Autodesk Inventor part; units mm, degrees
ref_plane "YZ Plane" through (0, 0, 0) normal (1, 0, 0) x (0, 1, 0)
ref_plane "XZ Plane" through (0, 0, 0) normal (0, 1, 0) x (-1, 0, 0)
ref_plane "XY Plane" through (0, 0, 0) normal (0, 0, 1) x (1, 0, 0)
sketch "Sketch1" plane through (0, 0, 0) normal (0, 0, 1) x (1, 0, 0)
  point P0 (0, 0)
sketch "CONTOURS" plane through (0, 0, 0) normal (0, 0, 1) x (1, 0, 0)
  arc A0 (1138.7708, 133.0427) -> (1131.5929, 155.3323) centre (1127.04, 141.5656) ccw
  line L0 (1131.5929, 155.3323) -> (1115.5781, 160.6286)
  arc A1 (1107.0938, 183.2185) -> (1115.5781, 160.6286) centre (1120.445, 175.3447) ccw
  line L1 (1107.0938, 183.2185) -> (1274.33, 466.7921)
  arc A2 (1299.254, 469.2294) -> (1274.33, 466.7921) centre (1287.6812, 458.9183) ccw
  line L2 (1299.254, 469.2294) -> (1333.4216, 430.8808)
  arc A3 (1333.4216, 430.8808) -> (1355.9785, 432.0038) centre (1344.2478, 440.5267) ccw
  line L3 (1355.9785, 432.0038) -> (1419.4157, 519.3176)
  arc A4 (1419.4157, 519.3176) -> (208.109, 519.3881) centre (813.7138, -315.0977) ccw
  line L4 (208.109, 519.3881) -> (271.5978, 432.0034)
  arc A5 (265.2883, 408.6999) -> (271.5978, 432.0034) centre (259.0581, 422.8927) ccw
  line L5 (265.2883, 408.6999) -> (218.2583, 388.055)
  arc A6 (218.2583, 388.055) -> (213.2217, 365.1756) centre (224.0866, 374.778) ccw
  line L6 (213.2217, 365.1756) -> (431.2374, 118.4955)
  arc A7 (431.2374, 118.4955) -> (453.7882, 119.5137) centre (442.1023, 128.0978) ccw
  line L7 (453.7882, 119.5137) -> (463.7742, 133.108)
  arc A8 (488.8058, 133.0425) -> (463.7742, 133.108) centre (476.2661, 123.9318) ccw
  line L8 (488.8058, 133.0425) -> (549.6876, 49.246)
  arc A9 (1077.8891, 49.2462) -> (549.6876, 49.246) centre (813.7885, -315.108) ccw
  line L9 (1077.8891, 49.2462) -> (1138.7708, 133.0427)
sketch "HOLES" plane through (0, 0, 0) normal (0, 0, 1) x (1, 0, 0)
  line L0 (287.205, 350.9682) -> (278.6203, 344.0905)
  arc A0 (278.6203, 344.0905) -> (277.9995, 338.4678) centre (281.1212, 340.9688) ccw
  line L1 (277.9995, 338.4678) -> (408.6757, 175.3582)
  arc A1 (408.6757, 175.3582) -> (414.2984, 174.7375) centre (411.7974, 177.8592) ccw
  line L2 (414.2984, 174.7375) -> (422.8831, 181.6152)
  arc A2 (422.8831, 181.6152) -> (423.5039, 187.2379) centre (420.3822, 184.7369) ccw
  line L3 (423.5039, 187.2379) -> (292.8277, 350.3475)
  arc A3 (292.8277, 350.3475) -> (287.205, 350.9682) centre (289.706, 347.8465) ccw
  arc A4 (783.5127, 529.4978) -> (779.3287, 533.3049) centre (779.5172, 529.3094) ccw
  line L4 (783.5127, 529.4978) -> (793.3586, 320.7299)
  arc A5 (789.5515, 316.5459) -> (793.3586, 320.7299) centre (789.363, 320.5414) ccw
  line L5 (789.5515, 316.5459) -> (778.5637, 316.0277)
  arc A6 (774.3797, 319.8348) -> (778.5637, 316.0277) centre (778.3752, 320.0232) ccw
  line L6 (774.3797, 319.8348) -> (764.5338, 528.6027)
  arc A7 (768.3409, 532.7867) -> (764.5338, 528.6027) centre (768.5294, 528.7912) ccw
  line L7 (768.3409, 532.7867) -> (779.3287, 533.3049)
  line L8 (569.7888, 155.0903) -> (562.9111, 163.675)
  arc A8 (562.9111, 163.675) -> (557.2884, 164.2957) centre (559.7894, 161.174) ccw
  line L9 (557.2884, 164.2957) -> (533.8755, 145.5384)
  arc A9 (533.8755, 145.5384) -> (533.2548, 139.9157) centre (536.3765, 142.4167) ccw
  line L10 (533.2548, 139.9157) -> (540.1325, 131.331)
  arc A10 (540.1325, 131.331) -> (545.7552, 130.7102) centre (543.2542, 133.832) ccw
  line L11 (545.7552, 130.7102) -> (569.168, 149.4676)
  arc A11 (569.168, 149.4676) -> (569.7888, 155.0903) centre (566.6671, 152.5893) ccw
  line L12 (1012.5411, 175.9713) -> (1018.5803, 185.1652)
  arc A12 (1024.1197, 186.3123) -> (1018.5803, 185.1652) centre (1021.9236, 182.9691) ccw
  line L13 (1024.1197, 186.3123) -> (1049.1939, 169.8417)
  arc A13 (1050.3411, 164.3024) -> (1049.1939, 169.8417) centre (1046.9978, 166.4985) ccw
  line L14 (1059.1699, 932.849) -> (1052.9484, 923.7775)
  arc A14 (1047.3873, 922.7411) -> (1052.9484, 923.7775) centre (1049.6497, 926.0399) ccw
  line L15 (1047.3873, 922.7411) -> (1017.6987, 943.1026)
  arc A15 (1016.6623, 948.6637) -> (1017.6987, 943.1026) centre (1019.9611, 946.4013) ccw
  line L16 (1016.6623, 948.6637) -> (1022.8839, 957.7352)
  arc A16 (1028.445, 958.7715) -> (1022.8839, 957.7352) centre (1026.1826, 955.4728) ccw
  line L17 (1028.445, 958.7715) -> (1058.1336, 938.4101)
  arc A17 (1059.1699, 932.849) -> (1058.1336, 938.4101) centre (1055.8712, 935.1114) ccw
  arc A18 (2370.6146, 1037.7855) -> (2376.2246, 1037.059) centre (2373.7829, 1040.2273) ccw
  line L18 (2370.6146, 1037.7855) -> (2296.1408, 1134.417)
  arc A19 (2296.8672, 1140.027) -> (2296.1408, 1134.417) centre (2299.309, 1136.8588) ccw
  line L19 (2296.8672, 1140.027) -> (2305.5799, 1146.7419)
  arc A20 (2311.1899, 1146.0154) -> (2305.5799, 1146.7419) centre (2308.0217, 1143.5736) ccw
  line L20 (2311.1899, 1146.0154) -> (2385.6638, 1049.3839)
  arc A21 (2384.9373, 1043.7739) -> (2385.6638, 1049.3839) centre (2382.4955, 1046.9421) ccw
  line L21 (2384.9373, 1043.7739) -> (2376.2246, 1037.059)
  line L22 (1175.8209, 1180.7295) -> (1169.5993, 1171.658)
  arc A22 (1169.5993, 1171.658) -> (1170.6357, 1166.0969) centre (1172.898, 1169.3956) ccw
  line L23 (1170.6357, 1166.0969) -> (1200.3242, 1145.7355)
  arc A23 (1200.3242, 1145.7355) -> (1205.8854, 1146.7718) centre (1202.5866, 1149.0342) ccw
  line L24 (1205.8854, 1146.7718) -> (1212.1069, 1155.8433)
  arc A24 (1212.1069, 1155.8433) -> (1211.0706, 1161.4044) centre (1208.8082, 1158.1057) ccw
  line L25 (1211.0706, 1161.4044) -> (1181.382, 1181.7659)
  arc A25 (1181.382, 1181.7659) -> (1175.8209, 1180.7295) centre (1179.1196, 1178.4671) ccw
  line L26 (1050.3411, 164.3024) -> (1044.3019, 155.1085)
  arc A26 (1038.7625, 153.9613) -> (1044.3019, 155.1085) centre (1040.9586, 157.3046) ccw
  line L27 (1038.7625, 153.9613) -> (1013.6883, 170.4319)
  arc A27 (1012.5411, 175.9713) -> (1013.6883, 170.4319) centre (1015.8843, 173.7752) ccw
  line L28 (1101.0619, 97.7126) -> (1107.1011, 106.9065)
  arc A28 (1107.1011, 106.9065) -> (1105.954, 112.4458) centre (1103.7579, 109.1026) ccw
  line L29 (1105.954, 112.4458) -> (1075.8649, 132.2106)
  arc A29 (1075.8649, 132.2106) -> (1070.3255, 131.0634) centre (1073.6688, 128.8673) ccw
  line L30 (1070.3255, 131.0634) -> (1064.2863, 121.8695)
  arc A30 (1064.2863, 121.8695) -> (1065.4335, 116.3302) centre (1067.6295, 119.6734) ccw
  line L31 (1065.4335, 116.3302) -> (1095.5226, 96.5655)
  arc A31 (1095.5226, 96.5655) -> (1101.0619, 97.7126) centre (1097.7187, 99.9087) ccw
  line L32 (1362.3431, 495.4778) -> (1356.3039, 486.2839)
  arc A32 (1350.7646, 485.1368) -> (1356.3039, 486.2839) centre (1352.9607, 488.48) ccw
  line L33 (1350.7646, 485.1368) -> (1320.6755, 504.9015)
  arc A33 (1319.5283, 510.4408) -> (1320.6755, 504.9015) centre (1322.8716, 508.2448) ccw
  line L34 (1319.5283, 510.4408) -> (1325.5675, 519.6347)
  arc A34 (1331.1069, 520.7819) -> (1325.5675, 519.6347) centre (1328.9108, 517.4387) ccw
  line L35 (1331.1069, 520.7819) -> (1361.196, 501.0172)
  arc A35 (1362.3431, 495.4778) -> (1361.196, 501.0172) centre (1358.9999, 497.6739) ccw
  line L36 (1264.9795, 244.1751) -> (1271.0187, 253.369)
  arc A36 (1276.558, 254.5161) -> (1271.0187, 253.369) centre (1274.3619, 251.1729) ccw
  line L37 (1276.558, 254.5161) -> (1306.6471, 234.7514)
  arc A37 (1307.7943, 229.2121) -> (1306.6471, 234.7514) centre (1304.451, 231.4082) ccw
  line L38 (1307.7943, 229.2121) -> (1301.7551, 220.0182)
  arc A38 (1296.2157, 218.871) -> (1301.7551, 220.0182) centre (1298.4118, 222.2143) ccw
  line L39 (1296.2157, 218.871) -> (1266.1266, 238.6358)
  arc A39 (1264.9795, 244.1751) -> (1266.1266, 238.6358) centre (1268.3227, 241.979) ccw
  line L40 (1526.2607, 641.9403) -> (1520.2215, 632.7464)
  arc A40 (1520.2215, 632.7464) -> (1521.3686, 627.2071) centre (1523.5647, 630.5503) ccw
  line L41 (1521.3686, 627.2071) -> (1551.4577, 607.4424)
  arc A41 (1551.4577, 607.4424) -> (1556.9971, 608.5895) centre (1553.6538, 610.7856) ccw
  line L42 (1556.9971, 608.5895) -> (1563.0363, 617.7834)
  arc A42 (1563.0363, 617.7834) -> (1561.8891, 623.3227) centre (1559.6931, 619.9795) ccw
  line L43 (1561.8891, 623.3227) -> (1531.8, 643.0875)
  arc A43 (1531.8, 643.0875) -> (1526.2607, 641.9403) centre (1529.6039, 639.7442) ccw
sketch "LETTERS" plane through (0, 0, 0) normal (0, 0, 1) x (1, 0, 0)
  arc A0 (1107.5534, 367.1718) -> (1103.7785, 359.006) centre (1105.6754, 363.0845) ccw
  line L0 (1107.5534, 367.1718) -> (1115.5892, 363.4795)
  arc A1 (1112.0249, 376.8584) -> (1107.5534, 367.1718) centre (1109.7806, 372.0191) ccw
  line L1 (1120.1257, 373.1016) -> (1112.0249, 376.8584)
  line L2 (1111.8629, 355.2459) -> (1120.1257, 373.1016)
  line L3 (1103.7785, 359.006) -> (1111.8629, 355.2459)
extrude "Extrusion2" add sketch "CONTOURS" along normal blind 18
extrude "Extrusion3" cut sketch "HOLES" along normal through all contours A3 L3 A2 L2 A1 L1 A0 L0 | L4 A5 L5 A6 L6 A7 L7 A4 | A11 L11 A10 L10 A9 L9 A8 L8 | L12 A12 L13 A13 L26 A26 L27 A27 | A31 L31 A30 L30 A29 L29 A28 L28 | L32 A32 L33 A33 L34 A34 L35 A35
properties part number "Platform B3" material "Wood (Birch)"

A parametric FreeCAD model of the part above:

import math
import FreeCAD as App
import Part
import Sketcher

V = App.Vector
Q = App.Units.Quantity

doc = App.newDocument("Part")
body = doc.addObject("PartDesign::Body", "Body")

# Sketch on XY plane
sketch1 = body.newObject("Sketcher::SketchObject", "Sketch")
sketch1.AttachmentSupport = (doc.getObject("XY_Plane"), [""])
sketch1.MapMode = "FlatFace"
sketch1.addGeometry([
    Part.LineSegment(V(1078, 49, 0), V(1139, 133, 0)),  # 0
    Part.ArcOfCircle(Part.Circle(V(1127, 142, 0), V(0, 0, 1), 15), math.radians(-36), math.radians(72)),  # 1
    Part.LineSegment(V(1132, 155, 0), V(1116, 161, 0)),  # 2
    Part.ArcOfCircle(Part.Circle(V(1120, 175, 0), V(0, 0, 1), 16), math.radians(149), math.radians(252)),  # 3
    Part.LineSegment(V(1107, 183, 0), V(1274, 467, 0)),  # 4
    Part.ArcOfCircle(Part.Circle(V(1288, 459, 0), V(0, 0, 1), 15), math.radians(42), math.radians(149)),  # 5
    Part.LineSegment(V(1299, 469, 0), V(1333, 431, 0)),  # 6
    Part.ArcOfCircle(Part.Circle(V(1344, 441, 0), V(0, 0, 1), 14), math.radians(-138), math.radians(-36)),  # 7
    Part.LineSegment(V(1356, 432, 0), V(1419, 519, 0)),  # 8
    Part.ArcOfCircle(Part.Circle(V(814, -315, 0), V(0, 0, 1), 1031), math.radians(54), math.radians(126)),  # 9
    Part.LineSegment(V(208, 519, 0), V(272, 432, 0)),  # 10
    Part.ArcOfCircle(Part.Circle(V(259, 423, 0), V(0, 0, 1), 16), math.radians(-66), math.radians(36)),  # 11
    Part.LineSegment(V(265, 409, 0), V(218, 388, 0)),  # 12
    Part.ArcOfCircle(Part.Circle(V(224, 375, 0), V(0, 0, 1), 14), math.radians(114), math.radians(221)),  # 13
    Part.LineSegment(V(213, 365, 0), V(431, 118, 0)),  # 14
    Part.ArcOfCircle(Part.Circle(V(442, 128, 0), V(0, 0, 1), 15), math.radians(-139), math.radians(-36)),  # 15
    Part.LineSegment(V(454, 120, 0), V(464, 133, 0)),  # 16
    Part.ArcOfCircle(Part.Circle(V(476, 124, 0), V(0, 0, 1), 15), math.radians(36), math.radians(144)),  # 17
    Part.LineSegment(V(489, 133, 0), V(550, 49, 0)),  # 18
    Part.ArcOfCircle(Part.Circle(V(814, -315, 0), V(0, 0, 1), 450), math.radians(54), math.radians(126)),  # 19
], False)
sketch1.addConstraint([
    Sketcher.Constraint("Tangent", 0, 2, 1, 1),
    Sketcher.Constraint("Tangent", 1, 2, 2, 1),
    Sketcher.Constraint("Tangent", 2, 2, 3, 2),
    Sketcher.Constraint("Tangent", 3, 1, 4, 1),
    Sketcher.Constraint("Tangent", 4, 2, 5, 2),
    Sketcher.Constraint("Tangent", 5, 1, 6, 1),
    Sketcher.Constraint("Tangent", 6, 2, 7, 1),
    Sketcher.Constraint("Tangent", 7, 2, 8, 1),
    Sketcher.Constraint("Coincident", 8, 2, 9, 1),
    Sketcher.Constraint("Coincident", 9, 2, 10, 1),
    Sketcher.Constraint("Tangent", 10, 2, 11, 2),
    Sketcher.Constraint("Tangent", 11, 1, 12, 1),
    Sketcher.Constraint("Tangent", 12, 2, 13, 1),
    Sketcher.Constraint("Tangent", 13, 2, 14, 1),
    Sketcher.Constraint("Tangent", 14, 2, 15, 1),
    Sketcher.Constraint("Tangent", 15, 2, 16, 1),
    Sketcher.Constraint("Tangent", 16, 2, 17, 2),
    Sketcher.Constraint("Tangent", 17, 1, 18, 1),
    Sketcher.Constraint("Coincident", 18, 2, 19, 2),
    Sketcher.Constraint("Coincident", 19, 1, 0, 1),
    Sketcher.Constraint("Equal", 3, 5),
    Sketcher.Constraint("Equal", 1, 7),
    Sketcher.Constraint("Equal", 5, 11),
    Sketcher.Constraint("Equal", 7, 13),
    Sketcher.Constraint("Equal", 13, 15),
    Sketcher.Constraint("Equal", 11, 17),
    Sketcher.Constraint("Parallel", 0, 8),
    Sketcher.Constraint("Parallel", 10, 18),
    Sketcher.Constraint("Horizontal", 18, 2, 19, 1),
    Sketcher.Constraint("Equal", 6, 12),
    Sketcher.Constraint("Equal", 4, 14),
    Sketcher.Constraint("Equal", 2, 16),
    Sketcher.Constraint("Equal", 0, 18),
    Sketcher.Constraint("Radius", 1, 14.5),
    Sketcher.Constraint("Radius", 3, 15.5),
    Sketcher.Constraint("Angle", 0, Q("54 deg")),
    Sketcher.Constraint("Angle", 10, Q("-54 deg")),
    Sketcher.Constraint("Angle", 2, Q("161.7003 deg")),
    Sketcher.Constraint("Angle", 6, Q("-48.2998 deg")),
    Sketcher.Constraint("Angle", 12, Q("-156.2998 deg")),
    Sketcher.Constraint("Angle", 16, Q("53.7 deg")),
    Sketcher.Constraint("Radius", 9, 1031.079),
    Sketcher.Constraint("DistanceY", -1, 1, 11, 1, 408.7),
    Sketcher.Constraint("Angle", 4, Q("59.4702 deg")),
    Sketcher.Constraint("Angle", 14, Q("-48.5298 deg")),
    Sketcher.Constraint("Radius", 19, 450.0035),
    Sketcher.Constraint("DistanceX", -1, 1, 1, 3, 1127.04),
    Sketcher.Constraint("DistanceX", -1, 1, 4, 2, 1274.33),
    Sketcher.Constraint("DistanceX", 12, 2, 11, 1, 47.03),
    Sketcher.Constraint("Distance", 4, 329.214),
    Sketcher.Constraint("DistanceX", -1, 1, 11, 3, 259.058),
    Sketcher.Constraint("DistanceY", 19, 3, -1, 1, 315.108),
    Sketcher.Constraint("DistanceY", 9, 3, 5, 3, 774.016),
    Sketcher.Constraint("DistanceX", 9, 3, 7, 3, 530.534),
])
pad1 = body.newObject("PartDesign::Pad", "Pad")
pad1.Profile = sketch1
pad1.Length = 18

# Sketch on XY plane
sketch2 = body.newObject("Sketcher::SketchObject", "Sketch001")
sketch2.AttachmentSupport = (doc.getObject("XY_Plane"), [""])
sketch2.MapMode = "FlatFace"
sketch2.addGeometry([
    Part.ArcOfCircle(Part.Circle(V(289.7, 347.8, 0), V(0, 0, 1), 4), math.radians(39), math.radians(129)),  # 0
    Part.LineSegment(V(287.2, 351, 0), V(278.6, 344.1, 0)),  # 1
    Part.ArcOfCircle(Part.Circle(V(281.1, 341, 0), V(0, 0, 1), 4), math.radians(129), math.radians(219)),  # 2
    Part.LineSegment(V(278, 338.5, 0), V(408.7, 175.4, 0)),  # 3
    Part.ArcOfCircle(Part.Circle(V(411.8, 177.9, 0), V(0, 0, 1), 4), math.radians(-141), math.radians(-51)),  # 4
    Part.LineSegment(V(414.3, 174.7, 0), V(422.9, 181.6, 0)),  # 5
    Part.ArcOfCircle(Part.Circle(V(420.4, 184.7, 0), V(0, 0, 1), 4), math.radians(-51), math.radians(39)),  # 6
    Part.LineSegment(V(423.5, 187.2, 0), V(292.8, 350.3, 0)),  # 7
    Part.LineSegment(V(793.4, 320.7, 0), V(783.5, 529.5, 0)),  # 8
    Part.ArcOfCircle(Part.Circle(V(779.5, 529.3, 0), V(0, 0, 1), 4), math.radians(3), math.radians(93)),  # 9
    Part.LineSegment(V(779.3, 533.3, 0), V(768.3, 532.8, 0)),  # 10
    Part.ArcOfCircle(Part.Circle(V(768.5, 528.8, 0), V(0, 0, 1), 4), math.radians(93), math.radians(183)),  # 11
    Part.LineSegment(V(764.5, 528.6, 0), V(774.4, 319.8, 0)),  # 12
    Part.ArcOfCircle(Part.Circle(V(778.4, 320, 0), V(0, 0, 1), 4), math.radians(-177), math.radians(-87)),  # 13
    Part.LineSegment(V(778.6, 316, 0), V(789.6, 316.5, 0)),  # 14
    Part.ArcOfCircle(Part.Circle(V(789.4, 320.5, 0), V(0, 0, 1), 4), math.radians(-87), math.radians(3)),  # 15
    Part.ArcOfCircle(Part.Circle(V(566.7, 152.6, 0), V(0, 0, 1), 4), math.radians(-51), math.radians(39)),  # 16
    Part.LineSegment(V(569.8, 155.1, 0), V(562.9, 163.7, 0)),  # 17
    Part.ArcOfCircle(Part.Circle(V(559.8, 161.2, 0), V(0, 0, 1), 4), math.radians(39), math.radians(129)),  # 18
    Part.LineSegment(V(557.3, 164.3, 0), V(533.9, 145.5, 0)),  # 19
    Part.ArcOfCircle(Part.Circle(V(536.4, 142.4, 0), V(0, 0, 1), 4), math.radians(129), math.radians(219)),  # 20
    Part.LineSegment(V(533.3, 139.9, 0), V(540.1, 131.3, 0)),  # 21
    Part.ArcOfCircle(Part.Circle(V(543.3, 133.8, 0), V(0, 0, 1), 4), math.radians(-141), math.radians(-51)),  # 22
    Part.LineSegment(V(545.8, 130.7, 0), V(569.2, 149.5, 0)),  # 23
    Part.LineSegment(V(1018.6, 185.2, 0), V(1012.5, 176, 0)),  # 24
    Part.ArcOfCircle(Part.Circle(V(1015.9, 173.8, 0), V(0, 0, 1), 4), math.radians(147), math.radians(237)),  # 25
    Part.LineSegment(V(1013.7, 170.4, 0), V(1038.8, 154, 0)),  # 26
    Part.ArcOfCircle(Part.Circle(V(1041, 157.3, 0), V(0, 0, 1), 4), math.radians(-123), math.radians(-33)),  # 27
    Part.LineSegment(V(1044.3, 155.1, 0), V(1050.3, 164.3, 0)),  # 28
    Part.ArcOfCircle(Part.Circle(V(1047, 166.5, 0), V(0, 0, 1), 4), math.radians(-33), math.radians(57)),  # 29
    Part.LineSegment(V(1049.2, 169.8, 0), V(1024.1, 186.3, 0)),  # 30
    Part.ArcOfCircle(Part.Circle(V(1021.9, 183, 0), V(0, 0, 1), 4), math.radians(57), math.radians(147)),  # 31
    Part.ArcOfCircle(Part.Circle(V(1097.7, 99.9, 0), V(0, 0, 1), 4), math.radians(-123), math.radians(-33)),  # 32
    Part.LineSegment(V(1101.1, 97.7, 0), V(1107.1, 106.9, 0)),  # 33
    Part.ArcOfCircle(Part.Circle(V(1103.8, 109.1, 0), V(0, 0, 1), 4), math.radians(-33), math.radians(57)),  # 34
    Part.LineSegment(V(1106, 112.4, 0), V(1075.9, 132.2, 0)),  # 35
    Part.ArcOfCircle(Part.Circle(V(1073.7, 128.9, 0), V(0, 0, 1), 4), math.radians(57), math.radians(147)),  # 36
    Part.LineSegment(V(1070.3, 131.1, 0), V(1064.3, 121.9, 0)),  # 37
    Part.ArcOfCircle(Part.Circle(V(1067.6, 119.7, 0), V(0, 0, 1), 4), math.radians(147), math.radians(237)),  # 38
    Part.LineSegment(V(1065.4, 116.3, 0), V(1095.5, 96.6, 0)),  # 39
    Part.LineSegment(V(1356.3, 486.3, 0), V(1362.3, 495.5, 0)),  # 40
    Part.ArcOfCircle(Part.Circle(V(1359, 497.7, 0), V(0, 0, 1), 4), math.radians(-33), math.radians(57)),  # 41
    Part.LineSegment(V(1361.2, 501, 0), V(1331.1, 520.8, 0)),  # 42
    Part.ArcOfCircle(Part.Circle(V(1328.9, 517.4, 0), V(0, 0, 1), 4), math.radians(57), math.radians(147)),  # 43
    Part.LineSegment(V(1325.6, 519.6, 0), V(1319.5, 510.4, 0)),  # 44
    Part.ArcOfCircle(Part.Circle(V(1322.9, 508.2, 0), V(0, 0, 1), 4), math.radians(147), math.radians(237)),  # 45
    Part.LineSegment(V(1320.7, 504.9, 0), V(1350.8, 485.1, 0)),  # 46
    Part.ArcOfCircle(Part.Circle(V(1353, 488.5, 0), V(0, 0, 1), 4), math.radians(-123), math.radians(-33)),  # 47
], False)
sketch2.addConstraint([
    Sketcher.Constraint("Tangent", 0, 2, 1, 1),
    Sketcher.Constraint("Tangent", 1, 2, 2, 1),
    Sketcher.Constraint("Tangent", 2, 2, 3, 1),
    Sketcher.Constraint("Tangent", 3, 2, 4, 1),
    Sketcher.Constraint("Tangent", 4, 2, 5, 1),
    Sketcher.Constraint("Tangent", 5, 2, 6, 1),
    Sketcher.Constraint("Tangent", 6, 2, 7, 1),
    Sketcher.Constraint("Tangent", 7, 2, 0, 1),
    Sketcher.Constraint("Tangent", 8, 2, 9, 1),
    Sketcher.Constraint("Tangent", 9, 2, 10, 1),
    Sketcher.Constraint("Tangent", 10, 2, 11, 1),
    Sketcher.Constraint("Tangent", 11, 2, 12, 1),
    Sketcher.Constraint("Tangent", 12, 2, 13, 1),
    Sketcher.Constraint("Tangent", 13, 2, 14, 1),
    Sketcher.Constraint("Tangent", 14, 2, 15, 1),
    Sketcher.Constraint("Tangent", 15, 2, 8, 1),
    Sketcher.Constraint("Tangent", 16, 2, 17, 1),
    Sketcher.Constraint("Tangent", 17, 2, 18, 1),
    Sketcher.Constraint("Tangent", 18, 2, 19, 1),
    Sketcher.Constraint("Tangent", 19, 2, 20, 1),
    Sketcher.Constraint("Tangent", 20, 2, 21, 1),
    Sketcher.Constraint("Tangent", 21, 2, 22, 1),
    Sketcher.Constraint("Tangent", 22, 2, 23, 1),
    Sketcher.Constraint("Tangent", 23, 2, 16, 1),
    Sketcher.Constraint("Tangent", 24, 2, 25, 1),
    Sketcher.Constraint("Tangent", 25, 2, 26, 1),
    Sketcher.Constraint("Tangent", 26, 2, 27, 1),
    Sketcher.Constraint("Tangent", 27, 2, 28, 1),
    Sketcher.Constraint("Tangent", 28, 2, 29, 1),
    Sketcher.Constraint("Tangent", 29, 2, 30, 1),
    Sketcher.Constraint("Tangent", 30, 2, 31, 1),
    Sketcher.Constraint("Tangent", 31, 2, 24, 1),
    Sketcher.Constraint("Tangent", 32, 2, 33, 1),
    Sketcher.Constraint("Tangent", 33, 2, 34, 1),
    Sketcher.Constraint("Tangent", 34, 2, 35, 1),
    Sketcher.Constraint("Tangent", 35, 2, 36, 1),
    Sketcher.Constraint("Tangent", 36, 2, 37, 1),
    Sketcher.Constraint("Tangent", 37, 2, 38, 1),
    Sketcher.Constraint("Tangent", 38, 2, 39, 1),
    Sketcher.Constraint("Tangent", 39, 2, 32, 1),
    Sketcher.Constraint("Tangent", 40, 2, 41, 1),
    Sketcher.Constraint("Tangent", 41, 2, 42, 1),
    Sketcher.Constraint("Tangent", 42, 2, 43, 1),
    Sketcher.Constraint("Tangent", 43, 2, 44, 1),
    Sketcher.Constraint("Tangent", 44, 2, 45, 1),
    Sketcher.Constraint("Tangent", 45, 2, 46, 1),
    Sketcher.Constraint("Tangent", 46, 2, 47, 1),
    Sketcher.Constraint("Tangent", 47, 2, 40, 1),
    Sketcher.Constraint("Equal", 0, 2),
    Sketcher.Constraint("Equal", 2, 4),
    Sketcher.Constraint("Equal", 4, 6),
    Sketcher.Constraint("Equal", 6, 9),
    Sketcher.Constraint("Equal", 9, 11),
    Sketcher.Constraint("Equal", 11, 13),
    Sketcher.Constraint("Equal", 13, 15),
    Sketcher.Constraint("Equal", 15, 16),
    Sketcher.Constraint("Equal", 16, 18),
    Sketcher.Constraint("Equal", 18, 20),
    Sketcher.Constraint("Equal", 20, 22),
    Sketcher.Constraint("Equal", 22, 25),
    Sketcher.Constraint("Equal", 25, 27),
    Sketcher.Constraint("Equal", 27, 29),
    Sketcher.Constraint("Equal", 29, 31),
    Sketcher.Constraint("Equal", 31, 32),
    Sketcher.Constraint("Equal", 32, 34),
    Sketcher.Constraint("Equal", 34, 36),
    Sketcher.Constraint("Equal", 36, 38),
    Sketcher.Constraint("Equal", 38, 41),
    Sketcher.Constraint("Equal", 41, 43),
    Sketcher.Constraint("Equal", 43, 45),
    Sketcher.Constraint("Equal", 45, 47),
    Sketcher.Constraint("Perpendicular", 1, 3),
    Sketcher.Constraint("Perpendicular", 3, 5),
    Sketcher.Constraint("Perpendicular", 5, 7),
    Sketcher.Constraint("Perpendicular", 8, 10),
    Sketcher.Constraint("Perpendicular", 10, 12),
    Sketcher.Constraint("Perpendicular", 12, 14),
    Sketcher.Constraint("Parallel", 7, 17),
    Sketcher.Constraint("Perpendicular", 17, 19),
    Sketcher.Constraint("Perpendicular", 19, 21),
    Sketcher.Constraint("Perpendicular", 21, 23),
    Sketcher.Constraint("Perpendicular", 24, 26),
    Sketcher.Constraint("Perpendicular", 26, 28),
    Sketcher.Constraint("Perpendicular", 28, 30),
    Sketcher.Constraint("Perpendicular", 30, 33),
    Sketcher.Constraint("Perpendicular", 33, 35),
    Sketcher.Constraint("Perpendicular", 35, 37),
    Sketcher.Constraint("Perpendicular", 37, 39),
    Sketcher.Constraint("Perpendicular", 39, 40),
    Sketcher.Constraint("Perpendicular", 40, 42),
    Sketcher.Constraint("Perpendicular", 42, 44),
    Sketcher.Constraint("Perpendicular", 44, 46),
    Sketcher.Constraint("Equal", 7, 8),
    Sketcher.Constraint("Equal", 5, 10),
    Sketcher.Constraint("Equal", 14, 17),
    Sketcher.Constraint("Equal", 21, 24),
    Sketcher.Constraint("Equal", 23, 26),
    Sketcher.Constraint("Equal", 28, 33),
    Sketcher.Constraint("Equal", 37, 40),
    Sketcher.Constraint("Equal", 39, 42),
    Sketcher.Constraint("Radius", 0, 4.0),
    Sketcher.Constraint("Distance", 1, 11.0),
    Sketcher.Constraint("Distance", 3, 209.0),
    Sketcher.Constraint("Distance", 19, 30.0),
    Sketcher.Constraint("Distance", 35, 36.0),
    Sketcher.Constraint("DistanceX", -1, 1, 41, 3, 1359.0),
    Sketcher.Constraint("Angle", 1, Q("-141.2998 deg")),
    Sketcher.Constraint("Angle", 8, Q("92.7002 deg")),
    Sketcher.Constraint("Angle", 24, Q("-123.2997 deg")),
    Sketcher.Constraint("DistanceY", -1, 1, 47, 3, 488.48),
    Sketcher.Constraint("DistanceY", -1, 1, 15, 2, 320.73),
    Sketcher.Constraint("DistanceX", -1, 1, 0, 3, 289.706),
    Sketcher.Constraint("DistanceY", -1, 1, 6, 3, 184.737),
    Sketcher.Constraint("DistanceX", -1, 1, 15, 3, 789.363),
    Sketcher.Constraint("DistanceX", -1, 1, 16, 3, 566.667),
    Sketcher.Constraint("DistanceY", -1, 1, 18, 3, 161.174),
    Sketcher.Constraint("DistanceY", -1, 1, 31, 3, 182.969),
    Sketcher.Constraint("DistanceX", -1, 1, 34, 3, 1103.758),
    Sketcher.Constraint("DistanceX", -1, 1, 24, 2, 1012.541),
    Sketcher.Constraint("DistanceY", -1, 1, 32, 3, 99.9087),
])
pocket1 = body.newObject("PartDesign::Pocket", "Pocket")
pocket1.Profile = sketch2
pocket1.Type = "ThroughAll"
pocket1.Reversed = True

doc.recompute()
